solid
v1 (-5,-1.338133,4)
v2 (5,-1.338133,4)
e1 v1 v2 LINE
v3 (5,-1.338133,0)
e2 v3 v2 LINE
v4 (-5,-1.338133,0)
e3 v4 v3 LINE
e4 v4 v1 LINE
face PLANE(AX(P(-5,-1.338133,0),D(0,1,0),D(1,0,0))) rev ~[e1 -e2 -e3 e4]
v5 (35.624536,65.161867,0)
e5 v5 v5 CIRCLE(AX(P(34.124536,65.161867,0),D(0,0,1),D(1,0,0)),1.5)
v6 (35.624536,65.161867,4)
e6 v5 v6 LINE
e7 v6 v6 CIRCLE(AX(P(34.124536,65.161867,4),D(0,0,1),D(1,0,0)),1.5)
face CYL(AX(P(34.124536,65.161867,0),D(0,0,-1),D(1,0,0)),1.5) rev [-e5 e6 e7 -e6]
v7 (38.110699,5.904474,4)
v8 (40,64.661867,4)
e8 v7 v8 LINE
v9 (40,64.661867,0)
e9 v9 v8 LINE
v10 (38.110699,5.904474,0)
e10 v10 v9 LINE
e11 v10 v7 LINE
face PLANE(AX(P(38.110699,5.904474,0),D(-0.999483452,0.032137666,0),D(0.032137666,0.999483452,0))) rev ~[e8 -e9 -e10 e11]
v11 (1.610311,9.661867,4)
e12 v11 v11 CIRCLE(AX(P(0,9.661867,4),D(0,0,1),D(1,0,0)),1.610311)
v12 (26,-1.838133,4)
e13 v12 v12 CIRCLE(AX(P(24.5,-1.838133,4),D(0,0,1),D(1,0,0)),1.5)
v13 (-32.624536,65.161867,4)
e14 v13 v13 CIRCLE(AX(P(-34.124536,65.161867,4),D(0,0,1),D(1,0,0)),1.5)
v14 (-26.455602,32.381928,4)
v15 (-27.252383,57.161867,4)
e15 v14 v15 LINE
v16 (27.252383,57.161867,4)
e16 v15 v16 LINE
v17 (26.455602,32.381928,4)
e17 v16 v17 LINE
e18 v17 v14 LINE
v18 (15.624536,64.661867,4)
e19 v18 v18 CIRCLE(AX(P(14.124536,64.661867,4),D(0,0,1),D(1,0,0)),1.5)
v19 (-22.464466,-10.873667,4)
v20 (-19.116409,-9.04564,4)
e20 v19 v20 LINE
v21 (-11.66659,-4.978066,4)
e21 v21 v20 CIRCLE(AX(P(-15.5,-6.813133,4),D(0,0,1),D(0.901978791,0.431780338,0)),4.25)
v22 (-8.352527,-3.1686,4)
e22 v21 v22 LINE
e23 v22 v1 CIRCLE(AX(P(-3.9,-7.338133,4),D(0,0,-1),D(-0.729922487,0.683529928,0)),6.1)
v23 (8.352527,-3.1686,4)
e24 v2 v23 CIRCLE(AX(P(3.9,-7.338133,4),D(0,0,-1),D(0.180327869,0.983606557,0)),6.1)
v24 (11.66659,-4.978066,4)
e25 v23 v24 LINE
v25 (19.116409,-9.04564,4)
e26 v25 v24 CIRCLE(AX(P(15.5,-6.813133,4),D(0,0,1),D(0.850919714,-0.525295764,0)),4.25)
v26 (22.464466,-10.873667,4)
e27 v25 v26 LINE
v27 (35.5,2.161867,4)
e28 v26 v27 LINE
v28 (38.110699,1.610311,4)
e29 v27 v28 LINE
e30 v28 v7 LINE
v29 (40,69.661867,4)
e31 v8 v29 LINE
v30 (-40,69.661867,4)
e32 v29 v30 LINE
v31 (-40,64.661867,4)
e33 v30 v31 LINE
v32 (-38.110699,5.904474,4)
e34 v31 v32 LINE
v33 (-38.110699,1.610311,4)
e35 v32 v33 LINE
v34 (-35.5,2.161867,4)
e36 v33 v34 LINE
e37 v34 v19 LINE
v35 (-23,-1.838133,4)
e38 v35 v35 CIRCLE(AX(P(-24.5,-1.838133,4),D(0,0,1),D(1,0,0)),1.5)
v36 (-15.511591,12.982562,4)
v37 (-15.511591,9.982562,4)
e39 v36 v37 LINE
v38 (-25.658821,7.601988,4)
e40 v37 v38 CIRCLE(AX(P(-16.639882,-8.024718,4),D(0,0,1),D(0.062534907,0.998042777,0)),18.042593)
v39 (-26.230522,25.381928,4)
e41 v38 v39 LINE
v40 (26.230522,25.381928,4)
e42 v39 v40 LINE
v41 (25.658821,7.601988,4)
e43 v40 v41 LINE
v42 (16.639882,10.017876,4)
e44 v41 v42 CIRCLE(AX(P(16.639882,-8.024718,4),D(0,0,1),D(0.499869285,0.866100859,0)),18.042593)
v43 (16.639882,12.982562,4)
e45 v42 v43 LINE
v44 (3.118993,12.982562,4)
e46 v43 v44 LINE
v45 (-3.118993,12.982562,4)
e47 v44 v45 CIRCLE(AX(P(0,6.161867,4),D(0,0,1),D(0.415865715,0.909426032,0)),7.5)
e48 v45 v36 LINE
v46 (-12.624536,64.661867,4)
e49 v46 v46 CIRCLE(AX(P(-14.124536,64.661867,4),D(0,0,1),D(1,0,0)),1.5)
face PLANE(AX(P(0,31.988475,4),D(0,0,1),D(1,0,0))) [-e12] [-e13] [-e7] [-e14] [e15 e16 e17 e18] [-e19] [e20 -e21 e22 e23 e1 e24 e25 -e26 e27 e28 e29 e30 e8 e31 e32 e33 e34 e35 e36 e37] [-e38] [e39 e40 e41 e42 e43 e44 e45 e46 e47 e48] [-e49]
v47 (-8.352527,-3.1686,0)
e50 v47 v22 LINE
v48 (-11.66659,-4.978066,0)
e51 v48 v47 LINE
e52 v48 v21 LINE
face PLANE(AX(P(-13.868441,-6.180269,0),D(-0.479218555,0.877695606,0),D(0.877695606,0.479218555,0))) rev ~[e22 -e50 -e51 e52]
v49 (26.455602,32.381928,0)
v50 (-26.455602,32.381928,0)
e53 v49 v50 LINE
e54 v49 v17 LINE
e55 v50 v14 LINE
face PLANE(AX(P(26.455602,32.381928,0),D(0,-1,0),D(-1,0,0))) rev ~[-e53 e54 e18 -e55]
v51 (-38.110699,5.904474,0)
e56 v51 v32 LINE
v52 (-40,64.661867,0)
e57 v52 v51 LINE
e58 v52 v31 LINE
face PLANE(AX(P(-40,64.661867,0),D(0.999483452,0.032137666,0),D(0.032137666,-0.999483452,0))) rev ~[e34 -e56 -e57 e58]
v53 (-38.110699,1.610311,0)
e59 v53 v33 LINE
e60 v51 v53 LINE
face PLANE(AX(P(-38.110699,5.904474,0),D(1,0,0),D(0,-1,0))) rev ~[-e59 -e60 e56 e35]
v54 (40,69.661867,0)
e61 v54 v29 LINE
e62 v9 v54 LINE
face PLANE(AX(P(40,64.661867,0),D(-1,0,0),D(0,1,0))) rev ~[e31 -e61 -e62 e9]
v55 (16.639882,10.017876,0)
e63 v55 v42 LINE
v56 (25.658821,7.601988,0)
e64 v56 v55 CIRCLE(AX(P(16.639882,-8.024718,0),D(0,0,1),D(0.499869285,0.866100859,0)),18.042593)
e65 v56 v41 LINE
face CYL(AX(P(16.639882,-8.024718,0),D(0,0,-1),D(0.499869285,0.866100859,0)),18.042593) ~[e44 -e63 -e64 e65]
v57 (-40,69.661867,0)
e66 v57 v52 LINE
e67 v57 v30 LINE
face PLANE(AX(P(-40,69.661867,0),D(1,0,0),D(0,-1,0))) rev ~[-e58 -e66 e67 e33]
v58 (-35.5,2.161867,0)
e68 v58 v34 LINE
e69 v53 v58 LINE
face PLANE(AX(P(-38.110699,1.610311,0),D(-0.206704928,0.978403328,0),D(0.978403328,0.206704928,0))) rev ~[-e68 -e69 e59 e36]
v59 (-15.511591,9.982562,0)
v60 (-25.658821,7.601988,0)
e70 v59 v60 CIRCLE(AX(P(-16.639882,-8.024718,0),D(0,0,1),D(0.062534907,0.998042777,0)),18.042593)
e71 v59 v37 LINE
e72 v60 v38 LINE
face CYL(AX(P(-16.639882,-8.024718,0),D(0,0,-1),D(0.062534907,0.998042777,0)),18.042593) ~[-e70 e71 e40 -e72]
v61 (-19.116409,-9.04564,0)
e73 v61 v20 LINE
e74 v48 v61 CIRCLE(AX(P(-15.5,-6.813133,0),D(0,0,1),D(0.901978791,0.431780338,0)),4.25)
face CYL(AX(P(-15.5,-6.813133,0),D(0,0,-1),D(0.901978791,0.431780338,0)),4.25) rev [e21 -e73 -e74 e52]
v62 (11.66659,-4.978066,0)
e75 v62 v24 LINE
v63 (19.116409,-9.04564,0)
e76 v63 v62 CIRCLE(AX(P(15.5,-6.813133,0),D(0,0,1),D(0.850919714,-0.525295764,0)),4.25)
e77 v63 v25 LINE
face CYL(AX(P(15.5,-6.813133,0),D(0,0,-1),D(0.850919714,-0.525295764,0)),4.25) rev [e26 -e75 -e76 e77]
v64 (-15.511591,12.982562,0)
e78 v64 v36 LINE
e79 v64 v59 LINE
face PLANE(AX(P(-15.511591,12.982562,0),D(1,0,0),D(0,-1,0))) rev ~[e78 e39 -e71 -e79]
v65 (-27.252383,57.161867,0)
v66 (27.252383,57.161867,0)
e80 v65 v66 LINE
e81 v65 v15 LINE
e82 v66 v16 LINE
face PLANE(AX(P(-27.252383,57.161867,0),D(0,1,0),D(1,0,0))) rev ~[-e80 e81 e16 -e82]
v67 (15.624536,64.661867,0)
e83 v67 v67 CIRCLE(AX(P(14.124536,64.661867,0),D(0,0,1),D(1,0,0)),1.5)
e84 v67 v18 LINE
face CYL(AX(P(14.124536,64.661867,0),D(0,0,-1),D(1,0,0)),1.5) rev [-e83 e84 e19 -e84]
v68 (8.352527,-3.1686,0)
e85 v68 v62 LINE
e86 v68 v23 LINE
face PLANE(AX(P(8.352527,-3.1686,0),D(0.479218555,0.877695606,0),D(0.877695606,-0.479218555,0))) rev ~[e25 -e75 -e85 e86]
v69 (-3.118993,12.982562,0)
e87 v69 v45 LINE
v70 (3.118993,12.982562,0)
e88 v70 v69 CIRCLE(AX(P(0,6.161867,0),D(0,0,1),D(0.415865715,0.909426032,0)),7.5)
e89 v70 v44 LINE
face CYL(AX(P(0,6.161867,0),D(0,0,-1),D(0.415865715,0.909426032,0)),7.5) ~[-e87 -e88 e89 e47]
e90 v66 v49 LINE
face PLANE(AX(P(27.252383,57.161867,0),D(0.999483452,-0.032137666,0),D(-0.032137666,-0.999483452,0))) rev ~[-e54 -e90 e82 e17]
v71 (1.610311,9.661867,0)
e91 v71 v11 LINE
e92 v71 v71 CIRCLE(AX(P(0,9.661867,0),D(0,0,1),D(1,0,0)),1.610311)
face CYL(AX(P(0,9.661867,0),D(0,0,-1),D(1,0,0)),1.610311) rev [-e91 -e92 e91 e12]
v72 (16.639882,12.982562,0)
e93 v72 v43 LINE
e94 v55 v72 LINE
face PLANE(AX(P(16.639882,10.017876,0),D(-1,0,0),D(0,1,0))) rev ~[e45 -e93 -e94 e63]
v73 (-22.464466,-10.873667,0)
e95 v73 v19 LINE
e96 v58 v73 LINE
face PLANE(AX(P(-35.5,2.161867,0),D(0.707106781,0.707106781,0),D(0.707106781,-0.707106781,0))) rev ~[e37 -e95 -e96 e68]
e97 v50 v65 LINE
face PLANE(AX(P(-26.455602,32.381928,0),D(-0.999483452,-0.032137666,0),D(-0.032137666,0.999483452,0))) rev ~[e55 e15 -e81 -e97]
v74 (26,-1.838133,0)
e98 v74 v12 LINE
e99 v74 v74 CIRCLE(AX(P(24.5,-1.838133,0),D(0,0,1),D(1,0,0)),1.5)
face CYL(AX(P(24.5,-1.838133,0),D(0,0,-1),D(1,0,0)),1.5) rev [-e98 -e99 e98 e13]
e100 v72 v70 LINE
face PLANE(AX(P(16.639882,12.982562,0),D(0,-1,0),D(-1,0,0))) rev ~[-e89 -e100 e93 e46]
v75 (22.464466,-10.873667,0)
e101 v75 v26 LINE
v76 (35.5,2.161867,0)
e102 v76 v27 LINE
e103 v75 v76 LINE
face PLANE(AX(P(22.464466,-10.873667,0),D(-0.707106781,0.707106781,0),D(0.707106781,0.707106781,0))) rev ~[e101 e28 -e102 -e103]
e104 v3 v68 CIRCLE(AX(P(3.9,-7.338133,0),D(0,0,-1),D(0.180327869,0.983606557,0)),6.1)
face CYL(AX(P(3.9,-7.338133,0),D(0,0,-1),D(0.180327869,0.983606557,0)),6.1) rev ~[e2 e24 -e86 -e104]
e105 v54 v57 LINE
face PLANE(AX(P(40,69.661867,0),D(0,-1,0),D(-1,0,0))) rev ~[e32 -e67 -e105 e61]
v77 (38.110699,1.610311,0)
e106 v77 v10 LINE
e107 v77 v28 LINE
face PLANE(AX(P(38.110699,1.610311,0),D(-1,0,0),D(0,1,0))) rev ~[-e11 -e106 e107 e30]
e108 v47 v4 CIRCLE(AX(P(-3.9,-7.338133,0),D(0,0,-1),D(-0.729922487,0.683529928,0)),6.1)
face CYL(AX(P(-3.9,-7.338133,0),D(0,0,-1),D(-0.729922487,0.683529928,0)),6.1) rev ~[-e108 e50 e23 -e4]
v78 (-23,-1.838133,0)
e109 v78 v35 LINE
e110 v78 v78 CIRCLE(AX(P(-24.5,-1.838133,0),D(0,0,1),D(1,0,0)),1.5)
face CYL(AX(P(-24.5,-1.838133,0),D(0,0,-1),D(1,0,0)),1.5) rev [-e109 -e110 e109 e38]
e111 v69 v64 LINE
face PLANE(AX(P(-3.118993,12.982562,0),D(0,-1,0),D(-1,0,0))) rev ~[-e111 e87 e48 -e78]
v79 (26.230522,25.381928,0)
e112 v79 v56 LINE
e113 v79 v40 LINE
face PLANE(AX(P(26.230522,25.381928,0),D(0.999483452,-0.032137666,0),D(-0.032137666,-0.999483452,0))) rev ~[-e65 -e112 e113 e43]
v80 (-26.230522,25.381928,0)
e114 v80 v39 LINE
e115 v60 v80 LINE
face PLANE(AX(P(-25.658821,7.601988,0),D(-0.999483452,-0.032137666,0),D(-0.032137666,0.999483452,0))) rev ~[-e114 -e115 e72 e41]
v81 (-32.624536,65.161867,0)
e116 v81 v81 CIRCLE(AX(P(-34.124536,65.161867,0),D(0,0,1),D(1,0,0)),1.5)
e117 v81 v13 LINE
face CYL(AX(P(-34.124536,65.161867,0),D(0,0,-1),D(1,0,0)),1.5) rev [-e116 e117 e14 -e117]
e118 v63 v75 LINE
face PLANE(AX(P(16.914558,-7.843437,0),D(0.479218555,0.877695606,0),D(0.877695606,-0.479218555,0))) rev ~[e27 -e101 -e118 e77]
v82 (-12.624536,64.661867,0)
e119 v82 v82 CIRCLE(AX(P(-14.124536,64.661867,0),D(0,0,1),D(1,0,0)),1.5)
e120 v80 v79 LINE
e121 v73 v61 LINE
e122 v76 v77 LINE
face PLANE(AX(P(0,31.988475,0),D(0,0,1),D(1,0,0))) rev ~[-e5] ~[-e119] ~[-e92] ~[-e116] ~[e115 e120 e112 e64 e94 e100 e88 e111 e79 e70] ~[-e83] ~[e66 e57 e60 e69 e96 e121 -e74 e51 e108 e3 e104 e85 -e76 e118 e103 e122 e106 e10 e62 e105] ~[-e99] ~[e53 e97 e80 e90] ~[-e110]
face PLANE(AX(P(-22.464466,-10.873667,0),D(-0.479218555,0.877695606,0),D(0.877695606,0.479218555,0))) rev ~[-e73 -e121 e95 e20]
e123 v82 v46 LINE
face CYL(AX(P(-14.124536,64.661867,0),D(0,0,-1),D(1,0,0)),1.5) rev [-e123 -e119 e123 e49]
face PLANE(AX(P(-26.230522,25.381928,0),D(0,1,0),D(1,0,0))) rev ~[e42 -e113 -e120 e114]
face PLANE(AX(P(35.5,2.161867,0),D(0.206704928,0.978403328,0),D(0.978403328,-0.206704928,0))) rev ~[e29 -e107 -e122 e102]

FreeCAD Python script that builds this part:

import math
import FreeCAD as App
import Part
import Sketcher

V = App.Vector
Q = App.Units.Quantity

doc = App.newDocument("Part")
body = doc.addObject("PartDesign::Body", "Body")

sketch1 = body.newObject("Sketcher::SketchObject", "Sketch")
sketch1.AttachmentSupport = (doc.getObject("XY_Plane"), [""])
sketch1.MapMode = "FlatFace"
sketch1.addGeometry([
    Part.LineSegment(V(-40, 64.7, 0), V(-38.1, 5.9, 0)),
    Part.LineSegment(V(-38.1, 5.9, 0), V(-38.1, 1.6, 0)),
    Part.LineSegment(V(-38.1, 1.6, 0), V(-35.5, 2.2, 0)),
    Part.LineSegment(V(-35.5, 2.2, 0), V(-22.5, -10.9, 0)),
    Part.LineSegment(V(-22.5, -10.9, 0), V(-16.9, -7.8, 0)),
    Part.ArcOfCircle(Part.Circle(V(-15.5, -6.8, 0), V(0, 0, 1), 1.8), math.radians(21), math.radians(216)),
    Part.LineSegment(V(-13.9, -6.2, 0), V(-8.4, -3.2, 0)),
    Part.ArcOfCircle(Part.Circle(V(-3.9, -7.3, 0), V(0, 0, 1), 6.1), math.radians(100), math.radians(137)),
    Part.LineSegment(V(-5, -1.3, 0), V(5, -1.3, 0)),
    Part.ArcOfCircle(Part.Circle(V(3.9, -7.3, 0), V(0, 0, 1), 6.1), math.radians(43), math.radians(80)),
    Part.LineSegment(V(8.4, -3.2, 0), V(13.9, -6.2, 0)),
    Part.ArcOfCircle(Part.Circle(V(15.5, -6.8, 0), V(0, 0, 1), 1.8), math.radians(-36), math.radians(159)),
    Part.LineSegment(V(16.9, -7.8, 0), V(22.5, -10.9, 0)),
    Part.LineSegment(V(22.5, -10.9, 0), V(35.5, 2.2, 0)),
    Part.LineSegment(V(35.5, 2.2, 0), V(38.1, 1.6, 0)),
    Part.LineSegment(V(38.1, 1.6, 0), V(38.1, 5.9, 0)),
    Part.LineSegment(V(38.1, 5.9, 0), V(40, 64.7, 0)),
    Part.LineSegment(V(40, 64.7, 0), V(40, 69.7, 0)),
    Part.LineSegment(V(40, 69.7, 0), V(-40, 69.7, 0)),
    Part.LineSegment(V(-40, 69.7, 0), V(-40, 64.7, 0)),
    Part.Circle(V(-24.5, -1.8, 0), V(0, 0, 1), 1.5),
    Part.Circle(V(0, 9.7, 0), V(0, 0, 1), 1.6),
    Part.Circle(V(24.5, -1.8, 0), V(0, 0, 1), 1.5),
    Part.LineSegment(V(16.6, 10, 0), V(16.6, 13, 0)),
    Part.LineSegment(V(16.6, 13, 0), V(3.1, 13, 0)),
    Part.ArcOfCircle(Part.Circle(V(0, 6.2, 0), V(0, 0, 1), 7.5), math.radians(65), math.radians(115)),
    Part.LineSegment(V(-3.1, 13, 0), V(-15.5, 13, 0)),
    Part.LineSegment(V(-15.5, 13, 0), V(-15.5, 10, 0)),
    Part.ArcOfCircle(Part.Circle(V(-16.6, -8, 0), V(0, 0, 1), 18), math.radians(86), math.radians(120)),
    Part.LineSegment(V(-25.7, 7.6, 0), V(-26.2, 25.4, 0)),
    Part.LineSegment(V(-26.2, 25.4, 0), V(26.2, 25.4, 0)),
    Part.LineSegment(V(26.2, 25.4, 0), V(25.7, 7.6, 0)),
    Part.ArcOfCircle(Part.Circle(V(16.6, -8, 0), V(0, 0, 1), 18), math.radians(60), math.radians(90)),
    Part.Circle(V(-34.1, 65.2, 0), V(0, 0, 1), 1.5),
    Part.Circle(V(-14.1, 64.7, 0), V(0, 0, 1), 1.5),
    Part.LineSegment(V(26.5, 32.4, 0), V(-26.5, 32.4, 0)),
    Part.LineSegment(V(-26.5, 32.4, 0), V(-27.3, 57.2, 0)),
    Part.LineSegment(V(-27.3, 57.2, 0), V(27.3, 57.2, 0)),
    Part.LineSegment(V(27.3, 57.2, 0), V(26.5, 32.4, 0)),
    Part.Circle(V(14.1, 64.7, 0), V(0, 0, 1), 1.5),
    Part.Circle(V(34.1, 65.2, 0), V(0, 0, 1), 1.5),
], False)
sketch1.addConstraint([
    Sketcher.Constraint("Coincident", 0, 2, 1, 1),
    Sketcher.Constraint("Coincident", 1, 2, 2, 1),
    Sketcher.Constraint("Coincident", 2, 2, 3, 1),
    Sketcher.Constraint("Coincident", 3, 2, 4, 1),
    Sketcher.Constraint("Coincident", 4, 2, 5, 2),
    Sketcher.Constraint("Coincident", 5, 1, 6, 1),
    Sketcher.Constraint("Coincident", 6, 2, 7, 2),
    Sketcher.Constraint("Coincident", 7, 1, 8, 1),
    Sketcher.Constraint("Coincident", 8, 2, 9, 2),
    Sketcher.Constraint("Coincident", 9, 1, 10, 1),
    Sketcher.Constraint("Coincident", 10, 2, 11, 2),
    Sketcher.Constraint("Coincident", 11, 1, 12, 1),
    Sketcher.Constraint("Coincident", 12, 2, 13, 1),
    Sketcher.Constraint("Coincident", 13, 2, 14, 1),
    Sketcher.Constraint("Coincident", 14, 2, 15, 1),
    Sketcher.Constraint("Coincident", 15, 2, 16, 1),
    Sketcher.Constraint("Coincident", 16, 2, 17, 1),
    Sketcher.Constraint("Coincident", 17, 2, 18, 1),
    Sketcher.Constraint("Coincident", 18, 2, 19, 1),
    Sketcher.Constraint("Coincident", 19, 2, 0, 1),
    Sketcher.Constraint("Coincident", 23, 2, 24, 1),
    Sketcher.Constraint("Coincident", 24, 2, 25, 1),
    Sketcher.Constraint("Coincident", 25, 2, 26, 1),
    Sketcher.Constraint("Coincident", 26, 2, 27, 1),
    Sketcher.Constraint("Coincident", 27, 2, 28, 1),
    Sketcher.Constraint("Coincident", 28, 2, 29, 1),
    Sketcher.Constraint("Coincident", 29, 2, 30, 1),
    Sketcher.Constraint("Coincident", 30, 2, 31, 1),
    Sketcher.Constraint("Coincident", 31, 2, 32, 1),
    Sketcher.Constraint("Coincident", 32, 2, 23, 1),
    Sketcher.Constraint("Coincident", 35, 2, 36, 1),
    Sketcher.Constraint("Coincident", 36, 2, 37, 1),
    Sketcher.Constraint("Coincident", 37, 2, 38, 1),
    Sketcher.Constraint("Coincident", 38, 2, 35, 1),
    Sketcher.Constraint("Vertical", 1),
    Sketcher.Constraint("Horizontal", 8),
    Sketcher.Constraint("Vertical", 15),
    Sketcher.Constraint("Vertical", 17),
    Sketcher.Constraint("Horizontal", 18),
    Sketcher.Constraint("Vertical", 19),
    Sketcher.Constraint("Vertical", 23),
    Sketcher.Constraint("Horizontal", 24),
    Sketcher.Constraint("Horizontal", 26),
    Sketcher.Constraint("Vertical", 27),
    Sketcher.Constraint("Horizontal", 30),
    Sketcher.Constraint("Horizontal", 35),
    Sketcher.Constraint("Horizontal", 37),
    Sketcher.Constraint("Equal", 7, 9),
    Sketcher.Constraint("Equal", 5, 11),
    Sketcher.Constraint("Equal", 20, 22),
    Sketcher.Constraint("Equal", 28, 32),
    Sketcher.Constraint("Equal", 22, 33),
    Sketcher.Constraint("Equal", 33, 34),
    Sketcher.Constraint("Equal", 34, 39),
    Sketcher.Constraint("Equal", 39, 40),
    Sketcher.Constraint("Symmetric", 7, 3, 9, 3, -2),
    Sketcher.Constraint("Symmetric", 5, 3, 11, 3, -2),
    Sketcher.Constraint("Symmetric", 20, 3, 22, 3, -2),
    Sketcher.Constraint("Symmetric", 28, 3, 32, 3, -2),
    Sketcher.Constraint("Symmetric", 34, 3, 39, 3, -2),
    Sketcher.Constraint("Symmetric", 33, 3, 40, 3, -2),
    Sketcher.Constraint("Symmetric", 3, 2, 12, 2, -2),
    Sketcher.Constraint("Symmetric", 2, 2, 13, 2, -2),
    Sketcher.Constraint("Symmetric", 1, 2, 14, 2, -2),
    Sketcher.Constraint("Symmetric", 16, 2, 19, 2, -2),
    Sketcher.Constraint("Symmetric", 24, 2, 25, 2, -2),
    Sketcher.Constraint("PointOnObject", 21, 3, -2),
    Sketcher.Constraint("Parallel", 4, 6),
    Sketcher.Constraint("Parallel", 10, 12),
    Sketcher.Constraint("Perpendicular", 3, 13),
    Sketcher.Constraint("Parallel", 0, 29),
    Sketcher.Constraint("Parallel", 16, 31),
    Sketcher.Constraint("Parallel", 29, 36),
    Sketcher.Constraint("Parallel", 31, 38),
    Sketcher.Constraint("Horizontal", 6, 2, 9, 1),
    Sketcher.Constraint("Horizontal", 5, 1, 10, 2),
    Sketcher.Constraint("Horizontal", 0, 2, 15, 2),
    Sketcher.Constraint("Horizontal", 39, 3, 16, 2),
    Sketcher.Constraint("Horizontal", 28, 2, 31, 2),
    Sketcher.Constraint("Vertical", 32, 3, 23, 2),
    Sketcher.Constraint("Diameter", 20, Q("3 mm")),
    Sketcher.Constraint("Radius", 7, Q("6.1 mm")),
    Sketcher.Constraint("Radius", 25, Q("7.5 mm")),
    Sketcher.Constraint("DistanceX", 8, 1, 8, 2, Q("10 mm")),
    Sketcher.Constraint("DistanceX", 18, 2, 18, 1, Q("80 mm")),
    Sketcher.Constraint("DistanceY", 17, 1, 17, 2, Q("5 mm")),
    Sketcher.Constraint("DistanceY", 27, 2, 27, 1, Q("3 mm")),
    Sketcher.Constraint("Radius", 5, Q("1.75 mm")),
    Sketcher.Constraint("DistanceX", 5, 3, 11, 3, Q("31 mm")),
    Sketcher.Constraint("DistanceX", 20, 3, 5, 3, Q("9 mm")),
    Sketcher.Constraint("DistanceY", 7, 3, 21, 3, Q("17 mm")),
    Sketcher.Constraint("DistanceY", 20, 3, 33, 3, Q("67 mm")),
    Sketcher.Constraint("DistanceY", 25, 3, 33, 3, Q("59 mm")),
    Sketcher.Constraint("DistanceX", 33, 3, 34, 3, Q("20 mm")),
    Sketcher.Constraint("DistanceY", 21, 3, 34, 3, Q("55 mm")),
    Sketcher.Constraint("DistanceX", 2, 2, 20, 3, Q("11 mm")),
    Sketcher.Constraint("DistanceY", 20, 3, 2, 2, Q("4 mm")),
    Sketcher.Constraint("DistanceY", 7, 3, 7, 1, Q("6 mm")),
    Sketcher.Constraint("DistanceY", 29, 2, 35, 2, Q("7 mm")),
    Sketcher.Constraint("DistanceY", 36, 2, 33, 3, Q("8 mm")),
    Sketcher.Constraint("DistanceY", 7, 3, 20, 3, Q("5.5 mm")),
    Sketcher.Constraint("Diameter", 21, Q("3.220622 mm")),
    Sketcher.Constraint("Radius", 28, Q("18.042593 mm")),
    Sketcher.Constraint("DistanceY", 7, 3, 5, 3, Q("0.525 mm")),
    Sketcher.Constraint("DistanceX", 24, 2, 24, 1, Q("13.52089 mm")),
    Sketcher.Constraint("DistanceX", 0, 2, -1, 1, Q("38.110699 mm")),
    Sketcher.Constraint("DistanceY", 6, 2, -1, 1, Q("3.1686 mm")),
    Sketcher.Constraint("DistanceX", 35, 2, -1, 1, Q("26.455602 mm")),
    Sketcher.Constraint("DistanceX", -1, 1, 38, 2, Q("26.455602 mm")),
    Sketcher.Constraint("Distance", 0, Q("58.78776 mm")),
    Sketcher.Constraint("Distance", 3, Q("18.435029 mm")),
    Sketcher.Constraint("Distance", 6, Q("6.284541 mm")),
    Sketcher.Constraint("Distance", 29, Q("17.789129 mm")),
    Sketcher.Constraint("DistanceX", 26, 2, 26, 1, Q("12.392598 mm")),
    Sketcher.Constraint("DistanceX", 30, 1, 30, 2, Q("52.461044 mm")),
    Sketcher.Constraint("DistanceY", 1, 2, 1, 1, Q("4.294163 mm")),
    Sketcher.Constraint("DistanceY", -1, 1, 1, 2, Q("1.610311 mm")),
    Sketcher.Constraint("DistanceX", 26, 2, -1, 1, Q("15.511591 mm")),
    Sketcher.Constraint("DistanceX", 34, 3, 39, 3, Q("28.249071 mm")),
])
pad1 = body.newObject("PartDesign::Pad", "Pad")
pad1.Profile = sketch1
pad1.Length = 4

sketch2 = body.newObject("Sketcher::SketchObject", "Sketch001")
sketch2.AttachmentSupport = (doc.getObject("XY_Plane"), [""])
sketch2.MapMode = "FlatFace"
sketch2.addGeometry([
    Part.LineSegment(V(-19.1, -9, 0), V(-16.9, -7.8, 0)),
    Part.ArcOfCircle(Part.Circle(V(-15.5, -6.8, 0), V(0, 0, 1), 1.8), math.radians(21), math.radians(216)),
    Part.LineSegment(V(-13.9, -6.2, 0), V(-11.7, -5, 0)),
    Part.ArcOfCircle(Part.Circle(V(-15.5, -6.8, 0), V(0, 0, 1), 4.2), math.radians(26), math.radians(212)),
    Part.LineSegment(V(16.9, -7.8, 0), V(19.1, -9, 0)),
    Part.ArcOfCircle(Part.Circle(V(15.5, -6.8, 0), V(0, 0, 1), 4.2), math.radians(-32), math.radians(154)),
    Part.LineSegment(V(11.7, -5, 0), V(13.9, -6.2, 0)),
    Part.ArcOfCircle(Part.Circle(V(15.5, -6.8, 0), V(0, 0, 1), 1.8), math.radians(-36), math.radians(159)),
], False)
sketch2.addConstraint([
    Sketcher.Constraint("Coincident", 0, 2, 1, 2),
    Sketcher.Constraint("Coincident", 1, 1, 2, 1),
    Sketcher.Constraint("Coincident", 2, 2, 3, 1),
    Sketcher.Constraint("Coincident", 3, 2, 0, 1),
    Sketcher.Constraint("Coincident", 4, 2, 5, 1),
    Sketcher.Constraint("Coincident", 5, 2, 6, 1),
    Sketcher.Constraint("Coincident", 6, 2, 7, 2),
    Sketcher.Constraint("Coincident", 7, 1, 4, 1),
    Sketcher.Constraint("Coincident", 3, 3, 1, 3),
    Sketcher.Constraint("Coincident", 7, 3, 5, 3),
    Sketcher.Constraint("Equal", 3, 5),
    Sketcher.Constraint("Equal", 1, 7),
    Sketcher.Constraint("Symmetric", 1, 3, 5, 3, -2),
    Sketcher.Constraint("Parallel", 0, 2),
    Sketcher.Constraint("Parallel", 4, 6),
    Sketcher.Constraint("Horizontal", 3, 2, 4, 2),
    Sketcher.Constraint("Horizontal", 2, 2, 5, 2),
    Sketcher.Constraint("Horizontal", 1, 1, 6, 2),
    Sketcher.Constraint("Equal", 0, 2),
    Sketcher.Constraint("Radius", 1, Q("1.75 mm")),
    Sketcher.Constraint("Radius", 3, Q("4.25 mm")),
    Sketcher.Constraint("DistanceX", 1, 3, 5, 3, Q("31 mm")),
    Sketcher.Constraint("DistanceX", 2, 2, 4, 2, Q("30.782999 mm")),
    Sketcher.Constraint("DistanceX", 1, 1, -1, 1, Q("13.868441 mm")),
    Sketcher.Constraint("DistanceY", 1, 1, -1, 1, Q("6.180269 mm")),
])
pocket1 = body.newObject("PartDesign::Pocket", "Pocket")
pocket1.Profile = sketch2
pocket1.Length = 4
pocket1.Reversed = True

doc.recompute()
